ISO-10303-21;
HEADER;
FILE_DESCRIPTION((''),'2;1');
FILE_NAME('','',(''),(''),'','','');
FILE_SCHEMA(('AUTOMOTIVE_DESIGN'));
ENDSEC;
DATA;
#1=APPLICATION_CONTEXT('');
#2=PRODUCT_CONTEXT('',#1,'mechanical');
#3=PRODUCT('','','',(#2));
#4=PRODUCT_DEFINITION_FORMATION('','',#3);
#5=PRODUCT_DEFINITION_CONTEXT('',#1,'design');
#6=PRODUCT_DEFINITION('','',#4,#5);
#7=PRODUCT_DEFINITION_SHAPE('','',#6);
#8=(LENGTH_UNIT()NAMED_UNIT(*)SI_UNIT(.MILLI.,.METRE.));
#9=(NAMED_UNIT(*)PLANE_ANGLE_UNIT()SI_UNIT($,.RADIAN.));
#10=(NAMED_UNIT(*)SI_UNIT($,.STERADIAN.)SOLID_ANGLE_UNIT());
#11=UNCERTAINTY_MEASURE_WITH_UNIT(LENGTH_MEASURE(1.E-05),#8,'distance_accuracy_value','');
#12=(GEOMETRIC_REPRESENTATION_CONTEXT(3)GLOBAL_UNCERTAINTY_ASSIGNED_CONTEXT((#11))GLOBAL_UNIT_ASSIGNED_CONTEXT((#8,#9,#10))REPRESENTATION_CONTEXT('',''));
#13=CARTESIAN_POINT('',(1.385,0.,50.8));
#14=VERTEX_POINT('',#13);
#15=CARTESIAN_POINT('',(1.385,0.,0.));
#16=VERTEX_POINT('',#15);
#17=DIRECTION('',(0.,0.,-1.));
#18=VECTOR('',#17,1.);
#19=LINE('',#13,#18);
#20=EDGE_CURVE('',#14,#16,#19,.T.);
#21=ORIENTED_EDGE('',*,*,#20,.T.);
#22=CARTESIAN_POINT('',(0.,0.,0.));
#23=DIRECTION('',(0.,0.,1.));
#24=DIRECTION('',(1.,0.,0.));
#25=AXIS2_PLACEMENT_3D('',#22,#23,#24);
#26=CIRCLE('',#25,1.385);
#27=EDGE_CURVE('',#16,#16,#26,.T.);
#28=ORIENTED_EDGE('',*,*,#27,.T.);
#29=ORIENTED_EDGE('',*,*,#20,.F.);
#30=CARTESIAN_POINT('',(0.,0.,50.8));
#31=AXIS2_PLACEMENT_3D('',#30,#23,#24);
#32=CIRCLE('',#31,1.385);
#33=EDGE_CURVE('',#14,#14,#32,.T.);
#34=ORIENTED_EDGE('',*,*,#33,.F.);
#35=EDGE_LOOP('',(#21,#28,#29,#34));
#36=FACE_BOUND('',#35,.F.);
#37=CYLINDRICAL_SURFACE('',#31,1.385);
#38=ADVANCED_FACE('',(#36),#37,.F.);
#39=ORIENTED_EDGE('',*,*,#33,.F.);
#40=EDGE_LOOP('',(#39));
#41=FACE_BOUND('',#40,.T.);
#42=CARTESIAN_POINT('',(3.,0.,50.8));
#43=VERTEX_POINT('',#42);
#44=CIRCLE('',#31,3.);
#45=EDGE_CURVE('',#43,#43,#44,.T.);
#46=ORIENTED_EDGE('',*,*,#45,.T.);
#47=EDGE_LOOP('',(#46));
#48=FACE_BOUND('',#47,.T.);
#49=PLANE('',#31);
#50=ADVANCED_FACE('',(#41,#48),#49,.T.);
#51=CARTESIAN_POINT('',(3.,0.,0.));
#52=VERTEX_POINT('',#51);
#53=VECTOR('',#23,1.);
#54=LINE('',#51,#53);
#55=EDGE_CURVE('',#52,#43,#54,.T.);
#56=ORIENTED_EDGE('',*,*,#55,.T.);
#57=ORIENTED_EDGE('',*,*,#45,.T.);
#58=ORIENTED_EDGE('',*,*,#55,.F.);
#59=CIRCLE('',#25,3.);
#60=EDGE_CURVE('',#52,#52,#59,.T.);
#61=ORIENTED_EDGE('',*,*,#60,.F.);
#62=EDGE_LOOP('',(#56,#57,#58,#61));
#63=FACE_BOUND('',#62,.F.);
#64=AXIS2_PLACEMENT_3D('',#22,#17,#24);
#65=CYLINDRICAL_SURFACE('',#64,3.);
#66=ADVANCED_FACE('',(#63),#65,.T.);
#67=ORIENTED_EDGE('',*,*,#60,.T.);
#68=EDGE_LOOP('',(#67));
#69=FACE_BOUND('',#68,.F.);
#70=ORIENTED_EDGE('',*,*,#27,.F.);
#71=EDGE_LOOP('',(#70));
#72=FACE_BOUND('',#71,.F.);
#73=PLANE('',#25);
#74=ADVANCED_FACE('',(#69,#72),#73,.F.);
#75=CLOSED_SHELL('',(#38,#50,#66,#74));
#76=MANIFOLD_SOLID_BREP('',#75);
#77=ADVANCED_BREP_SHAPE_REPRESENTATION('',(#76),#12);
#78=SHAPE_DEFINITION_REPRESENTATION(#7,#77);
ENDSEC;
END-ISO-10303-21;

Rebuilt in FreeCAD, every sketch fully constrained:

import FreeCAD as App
import Part
import Sketcher

doc = App.newDocument("Part")
body = doc.addObject("PartDesign::Body", "Body")

# Sketch on XY plane
sketch1 = body.newObject("Sketcher::SketchObject", "Sketch")
sketch1.AttachmentSupport = (doc.getObject("XY_Plane"), [""])
sketch1.MapMode = "FlatFace"
sketch1.addGeometry(Part.Circle(App.Vector(0, 0, 0), App.Vector(0, 0, 1), 3), False)
sketch1.addConstraint(Sketcher.Constraint("Coincident", 0, 3, -1, 1))
sketch1.addConstraint(Sketcher.Constraint("Diameter", 0, 6.0))
pad1 = body.newObject("PartDesign::Pad", "Pad")
pad1.Profile = sketch1
pad1.Length = 50.8

# Sketch on XY plane
sketch2 = body.newObject("Sketcher::SketchObject", "Sketch001")
sketch2.AttachmentSupport = (doc.getObject("XY_Plane"), [""])
sketch2.MapMode = "FlatFace"
sketch2.AttachmentOffset = App.Placement(App.Vector(0, 0, 50.8), App.Rotation())
sketch2.addGeometry(Part.Circle(App.Vector(0, 0, 0), App.Vector(0, 0, 1), 1.385), False)
sketch2.addConstraint(Sketcher.Constraint("Coincident", 0, 3, -1, 1))
sketch2.addConstraint(Sketcher.Constraint("Diameter", 0, 2.77))
pocket1 = body.newObject("PartDesign::Pocket", "Pocket")
pocket1.Profile = sketch2
pocket1.Type = "ThroughAll"

doc.recompute()
